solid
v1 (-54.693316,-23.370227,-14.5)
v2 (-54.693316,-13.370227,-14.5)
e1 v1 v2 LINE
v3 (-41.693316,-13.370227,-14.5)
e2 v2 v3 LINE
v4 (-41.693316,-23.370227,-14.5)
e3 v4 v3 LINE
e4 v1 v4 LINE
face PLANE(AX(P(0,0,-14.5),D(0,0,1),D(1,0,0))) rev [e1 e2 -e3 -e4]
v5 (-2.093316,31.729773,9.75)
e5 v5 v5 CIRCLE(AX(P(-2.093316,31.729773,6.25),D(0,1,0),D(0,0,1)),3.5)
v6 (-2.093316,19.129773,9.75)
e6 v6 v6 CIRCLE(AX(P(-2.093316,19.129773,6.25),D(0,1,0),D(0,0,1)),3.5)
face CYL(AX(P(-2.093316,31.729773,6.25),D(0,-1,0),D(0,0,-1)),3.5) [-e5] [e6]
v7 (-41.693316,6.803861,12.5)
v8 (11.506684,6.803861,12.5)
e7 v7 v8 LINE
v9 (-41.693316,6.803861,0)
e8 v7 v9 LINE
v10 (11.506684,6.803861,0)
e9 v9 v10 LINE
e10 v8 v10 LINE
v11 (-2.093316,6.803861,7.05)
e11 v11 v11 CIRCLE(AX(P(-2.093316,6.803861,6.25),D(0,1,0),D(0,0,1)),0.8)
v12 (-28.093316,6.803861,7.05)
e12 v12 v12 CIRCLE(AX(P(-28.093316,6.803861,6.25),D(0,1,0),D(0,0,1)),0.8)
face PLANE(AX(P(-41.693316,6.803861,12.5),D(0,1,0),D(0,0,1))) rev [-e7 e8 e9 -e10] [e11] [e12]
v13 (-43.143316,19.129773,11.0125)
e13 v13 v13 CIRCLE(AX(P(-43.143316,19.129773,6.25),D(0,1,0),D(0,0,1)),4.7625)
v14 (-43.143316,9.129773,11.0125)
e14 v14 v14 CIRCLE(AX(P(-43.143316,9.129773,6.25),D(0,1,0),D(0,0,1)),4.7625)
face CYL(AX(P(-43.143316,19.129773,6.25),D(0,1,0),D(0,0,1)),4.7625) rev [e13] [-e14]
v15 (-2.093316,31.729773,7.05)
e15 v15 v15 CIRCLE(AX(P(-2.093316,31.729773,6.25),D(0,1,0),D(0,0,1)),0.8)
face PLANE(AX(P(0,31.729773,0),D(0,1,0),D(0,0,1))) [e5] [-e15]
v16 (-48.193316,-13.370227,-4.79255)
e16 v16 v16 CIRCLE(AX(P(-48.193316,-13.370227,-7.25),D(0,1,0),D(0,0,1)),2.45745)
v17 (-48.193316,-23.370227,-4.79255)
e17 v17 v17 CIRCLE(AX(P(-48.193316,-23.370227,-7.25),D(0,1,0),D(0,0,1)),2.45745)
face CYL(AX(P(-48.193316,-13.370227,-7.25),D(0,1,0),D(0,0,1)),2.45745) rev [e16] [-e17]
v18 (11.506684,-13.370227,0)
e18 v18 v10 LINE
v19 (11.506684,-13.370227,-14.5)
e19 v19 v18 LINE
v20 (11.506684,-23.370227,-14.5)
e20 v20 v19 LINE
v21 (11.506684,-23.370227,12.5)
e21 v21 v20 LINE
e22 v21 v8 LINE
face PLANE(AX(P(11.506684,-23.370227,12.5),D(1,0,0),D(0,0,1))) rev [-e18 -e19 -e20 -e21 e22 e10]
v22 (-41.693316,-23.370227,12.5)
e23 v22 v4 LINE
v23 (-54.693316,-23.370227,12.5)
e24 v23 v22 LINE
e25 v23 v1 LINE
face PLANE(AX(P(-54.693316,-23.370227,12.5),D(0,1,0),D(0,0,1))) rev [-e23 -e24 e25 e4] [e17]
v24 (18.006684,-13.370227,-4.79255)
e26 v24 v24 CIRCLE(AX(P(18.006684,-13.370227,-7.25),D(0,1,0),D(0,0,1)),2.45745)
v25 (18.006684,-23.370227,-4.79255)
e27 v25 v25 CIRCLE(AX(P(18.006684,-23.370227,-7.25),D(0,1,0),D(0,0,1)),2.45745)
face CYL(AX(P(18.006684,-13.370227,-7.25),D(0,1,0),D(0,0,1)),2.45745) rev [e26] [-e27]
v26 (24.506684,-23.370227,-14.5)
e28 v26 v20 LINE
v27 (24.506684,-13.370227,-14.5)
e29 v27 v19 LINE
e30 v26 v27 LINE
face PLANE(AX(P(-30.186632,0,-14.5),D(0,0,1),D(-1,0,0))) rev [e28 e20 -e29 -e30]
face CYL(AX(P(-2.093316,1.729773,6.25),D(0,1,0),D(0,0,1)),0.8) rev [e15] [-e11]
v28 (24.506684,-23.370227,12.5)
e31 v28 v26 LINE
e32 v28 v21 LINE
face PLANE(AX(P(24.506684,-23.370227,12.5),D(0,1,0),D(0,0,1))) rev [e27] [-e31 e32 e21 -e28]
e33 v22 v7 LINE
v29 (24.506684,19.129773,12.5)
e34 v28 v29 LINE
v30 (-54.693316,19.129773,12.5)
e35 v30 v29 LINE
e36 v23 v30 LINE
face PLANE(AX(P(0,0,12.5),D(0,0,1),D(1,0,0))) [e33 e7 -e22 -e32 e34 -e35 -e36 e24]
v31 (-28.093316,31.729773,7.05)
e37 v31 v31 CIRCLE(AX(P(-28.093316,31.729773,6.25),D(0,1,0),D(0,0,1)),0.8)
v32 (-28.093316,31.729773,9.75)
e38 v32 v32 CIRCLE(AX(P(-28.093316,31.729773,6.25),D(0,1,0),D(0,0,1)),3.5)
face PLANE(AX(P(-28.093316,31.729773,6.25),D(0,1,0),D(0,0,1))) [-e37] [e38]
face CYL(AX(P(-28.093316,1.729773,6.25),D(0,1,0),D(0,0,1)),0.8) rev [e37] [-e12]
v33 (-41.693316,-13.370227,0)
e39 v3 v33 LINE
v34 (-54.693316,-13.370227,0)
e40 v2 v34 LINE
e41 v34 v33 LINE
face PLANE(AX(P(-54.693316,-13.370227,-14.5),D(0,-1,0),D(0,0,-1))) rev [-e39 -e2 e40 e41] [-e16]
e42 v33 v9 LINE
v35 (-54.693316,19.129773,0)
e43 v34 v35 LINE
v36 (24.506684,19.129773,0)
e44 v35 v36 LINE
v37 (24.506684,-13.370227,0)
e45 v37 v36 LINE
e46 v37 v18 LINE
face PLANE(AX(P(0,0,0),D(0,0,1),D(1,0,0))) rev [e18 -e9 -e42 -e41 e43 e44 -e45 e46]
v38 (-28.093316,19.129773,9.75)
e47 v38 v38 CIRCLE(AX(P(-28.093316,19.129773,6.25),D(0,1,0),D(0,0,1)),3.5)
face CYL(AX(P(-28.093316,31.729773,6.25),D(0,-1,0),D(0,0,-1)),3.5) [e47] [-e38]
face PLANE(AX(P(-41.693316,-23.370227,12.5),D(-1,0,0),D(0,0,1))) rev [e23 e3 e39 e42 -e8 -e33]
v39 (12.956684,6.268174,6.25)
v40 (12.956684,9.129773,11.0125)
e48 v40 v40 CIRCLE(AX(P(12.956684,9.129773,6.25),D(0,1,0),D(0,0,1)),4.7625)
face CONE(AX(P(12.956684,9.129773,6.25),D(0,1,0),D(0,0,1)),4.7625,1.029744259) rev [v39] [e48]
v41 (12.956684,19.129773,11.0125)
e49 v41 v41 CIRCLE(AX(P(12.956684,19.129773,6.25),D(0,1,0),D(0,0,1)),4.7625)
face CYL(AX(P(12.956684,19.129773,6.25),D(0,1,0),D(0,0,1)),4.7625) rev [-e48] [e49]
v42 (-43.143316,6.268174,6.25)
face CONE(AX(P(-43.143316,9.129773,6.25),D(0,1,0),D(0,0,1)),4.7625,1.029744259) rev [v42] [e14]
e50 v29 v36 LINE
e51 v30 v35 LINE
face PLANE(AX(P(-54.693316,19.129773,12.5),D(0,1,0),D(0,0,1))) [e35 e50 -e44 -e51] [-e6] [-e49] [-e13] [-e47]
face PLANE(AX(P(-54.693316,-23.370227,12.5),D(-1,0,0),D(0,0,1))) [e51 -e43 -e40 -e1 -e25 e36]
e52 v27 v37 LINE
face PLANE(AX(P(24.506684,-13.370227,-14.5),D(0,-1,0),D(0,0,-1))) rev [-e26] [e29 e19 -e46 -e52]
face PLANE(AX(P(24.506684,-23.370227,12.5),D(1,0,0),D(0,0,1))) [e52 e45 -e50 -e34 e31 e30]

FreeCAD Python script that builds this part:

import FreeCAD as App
import Part
import Sketcher

V = App.Vector

doc = App.newDocument("Part")
body = doc.addObject("PartDesign::Body", "Body")

sketch1 = body.newObject("Sketcher::SketchObject", "Sketch")
sketch1.AttachmentSupport = (doc.getObject("XY_Plane"), [""])
sketch1.MapMode = "FlatFace"
sketch1.addGeometry([
    Part.LineSegment(V(-55, 19, 0), V(-55, -23, 0)),
    Part.LineSegment(V(-55, -23, 0), V(-42, -23, 0)),
    Part.LineSegment(V(-42, -23, 0), V(-42, 7, 0)),
    Part.LineSegment(V(-42, 7, 0), V(-15, 7, 0)),
    Part.LineSegment(V(-15, 7, 0), V(-15, 19, 0)),
    Part.LineSegment(V(-15, 19, 0), V(-55, 19, 0)),
], False)
sketch1.addConstraint([
    Sketcher.Constraint("Coincident", 0, 2, 1, 1),
    Sketcher.Constraint("Coincident", 1, 2, 2, 1),
    Sketcher.Constraint("Coincident", 2, 2, 3, 1),
    Sketcher.Constraint("Coincident", 3, 2, 4, 1),
    Sketcher.Constraint("Coincident", 4, 2, 5, 1),
    Sketcher.Constraint("Coincident", 5, 2, 0, 1),
    Sketcher.Constraint("Vertical", 0),
    Sketcher.Constraint("Horizontal", 1),
    Sketcher.Constraint("Vertical", 2),
    Sketcher.Constraint("Horizontal", 3),
    Sketcher.Constraint("Vertical", 4),
    Sketcher.Constraint("Horizontal", 5),
    Sketcher.Constraint("DistanceX", 1, 1, 1, 2, 13.0),
    Sketcher.Constraint("DistanceX", 3, 1, 3, 2, 26.6),
    Sketcher.Constraint("DistanceY", 0, 2, 0, 1, 42.5),
    Sketcher.Constraint("DistanceY", 2, 1, 2, 2, 30.174087),
    Sketcher.Constraint("DistanceY", -1, 1, 2, 2, 6.803861),
    Sketcher.Constraint("DistanceX", 0, 2, -1, 1, 54.693316),
])
pad1 = body.newObject("PartDesign::Pad", "Pad")
pad1.Profile = sketch1
pad1.Length = 12.5

sketch2 = body.newObject("Sketcher::SketchObject", "Sketch001")
sketch2.AttachmentSupport = (doc.getObject("XY_Plane"), [""])
sketch2.MapMode = "FlatFace"
sketch2.addGeometry([
    Part.LineSegment(V(-42, -13, 0), V(-42, -23, 0)),
    Part.LineSegment(V(-42, -23, 0), V(-55, -23, 0)),
    Part.LineSegment(V(-55, -23, 0), V(-55, -13, 0)),
    Part.LineSegment(V(-55, -13, 0), V(-42, -13, 0)),
], False)
sketch2.addConstraint([
    Sketcher.Constraint("Coincident", 0, 2, 1, 1),
    Sketcher.Constraint("Coincident", 1, 2, 2, 1),
    Sketcher.Constraint("Coincident", 2, 2, 3, 1),
    Sketcher.Constraint("Coincident", 3, 2, 0, 1),
    Sketcher.Constraint("Vertical", 0),
    Sketcher.Constraint("Horizontal", 1),
    Sketcher.Constraint("Vertical", 2),
    Sketcher.Constraint("Horizontal", 3),
    Sketcher.Constraint("DistanceX", 1, 2, 1, 1, 13.0),
    Sketcher.Constraint("DistanceY", 0, 2, 0, 1, 10.0),
    Sketcher.Constraint("DistanceX", 0, 2, -1, 1, 41.693316),
    Sketcher.Constraint("DistanceY", 0, 2, -1, 1, 23.370227),
])
pad2 = body.newObject("PartDesign::Pad", "Pad001")
pad2.Profile = sketch2
pad2.Length = 14.5
pad2.Reversed = True
body2 = doc.addObject("PartDesign::Body", "Body001")
doc.recompute()

body2.BaseFeature = body
doc.recompute()

mirroring = doc.addObject("Part::Mirroring", "Mirroring")
mirroring.Source = body
mirroring.Base = V(-15.093316, 6.803861, 12.5)
mirroring.Normal = V(-1, 0, 0)
body3 = doc.addObject("PartDesign::Body", "Body002")
body3.BaseFeature = mirroring
boolean = body2.newObject("PartDesign::Boolean", "Boolean")
boolean.Type = "Fuse"
boolean.addObjects([body3])
doc.recompute()

sketch3 = body2.newObject("Sketcher::SketchObject", "Sketch002")
sketch3.AttachmentSupport = (doc.getObject("XZ_Plane001"), [""])
sketch3.MapMode = "FlatFace"
sketch3.AttachmentOffset = App.Placement(V(0, 0, 13.370227), App.Rotation())
sketch3.addGeometry([
    Part.Circle(V(-48.2, -7.2, 0), V(0, 0, 1), 2.5),
    Part.Circle(V(18, -7.2, 0), V(0, 0, 1), 2.5),
], False)
sketch3.addConstraint([
    Sketcher.Constraint("Equal", 0, 1),
    Sketcher.Constraint("Horizontal", 0, 3, 1, 3),
    Sketcher.Constraint("Diameter", 0, 4.9149),
    Sketcher.Constraint("DistanceX", 0, 3, 1, 3, 66.2),
    Sketcher.Constraint("DistanceY", 0, 3, -1, 1, 7.25),
    Sketcher.Constraint("DistanceX", 0, 3, -1, 1, 48.193316),
])
doc.recompute()
hole = body2.newObject("PartDesign::Hole", "Hole")
hole.Profile = sketch3
hole.ThreadType = "None"
hole.Diameter = 4.9149
hole.DepthType = "ThroughAll"
hole.Reversed = True

sketch4 = body2.newObject("Sketcher::SketchObject", "Sketch003")
sketch4.AttachmentSupport = (doc.getObject("XZ_Plane001"), [""])
sketch4.MapMode = "FlatFace"
sketch4.AttachmentOffset = App.Placement(V(0, 0, -19.129773), App.Rotation())
sketch4.addGeometry([
    Part.Circle(V(-28.1, 6.2, 0), V(0, 0, 1), 3.5),
    Part.Circle(V(-2.1, 6.2, 0), V(0, 0, 1), 3.5),
], False)
sketch4.addConstraint([
    Sketcher.Constraint("Equal", 0, 1),
    Sketcher.Constraint("Horizontal", 0, 3, 1, 3),
    Sketcher.Constraint("Diameter", 0, 7.0),
    Sketcher.Constraint("DistanceX", 0, 3, 1, 3, 26.0),
    Sketcher.Constraint("DistanceY", -1, 1, 0, 3, 6.25),
    Sketcher.Constraint("DistanceX", 0, 3, -1, 1, 28.093316),
])
pad3 = body2.newObject("PartDesign::Pad", "Pad002")
pad3.Profile = sketch4
pad3.Length = 12.6
pad3.Reversed = True

sketch5 = body2.newObject("Sketcher::SketchObject", "Sketch004")
sketch5.AttachmentSupport = (doc.getObject("XZ_Plane001"), [""])
sketch5.MapMode = "FlatFace"
sketch5.AttachmentOffset = App.Placement(V(0, 0, -31.729773), App.Rotation())
sketch5.addGeometry(Part.Circle(V(-2.1, 6.2, 0), V(0, 0, 1), 0.8), False)
sketch5.addConstraint([
    Sketcher.Constraint("Diameter", 0, 1.6),
    Sketcher.Constraint("DistanceY", -1, 1, 0, 3, 6.25),
    Sketcher.Constraint("DistanceX", 0, 3, -1, 1, 2.093316),
])
pocket1 = body2.newObject("PartDesign::Pocket", "Pocket")
pocket1.Profile = sketch5
pocket1.Length = 30
pocket1.Reversed = True

sketch6 = body2.newObject("Sketcher::SketchObject", "Sketch005")
sketch6.AttachmentSupport = (doc.getObject("XZ_Plane001"), [""])
sketch6.MapMode = "FlatFace"
sketch6.AttachmentOffset = App.Placement(V(0, 0, -31.729773), App.Rotation())
sketch6.addGeometry(Part.Circle(V(-28.1, 6.2, 0), V(0, 0, 1), 0.8), False)
sketch6.addConstraint([
    Sketcher.Constraint("Diameter", 0, 1.6),
    Sketcher.Constraint("DistanceY", -1, 1, 0, 3, 6.25),
    Sketcher.Constraint("DistanceX", 0, 3, -1, 1, 28.093316),
])
pocket2 = body2.newObject("PartDesign::Pocket", "Pocket001")
pocket2.Profile = sketch6
pocket2.Length = 30
pocket2.Reversed = True

sketch7 = body2.newObject("Sketcher::SketchObject", "Sketch006")
sketch7.AttachmentSupport = (doc.getObject("XZ_Plane001"), [""])
sketch7.MapMode = "FlatFace"
sketch7.AttachmentOffset = App.Placement(V(0, 0, -19.129773), App.Rotation())
sketch7.addGeometry([
    Part.Circle(V(-43.1, 6.2, 0), V(0, 0, 1), 4.8),
    Part.Circle(V(13, 6.2, 0), V(0, 0, 1), 4.8),
], False)
sketch7.addConstraint([
    Sketcher.Constraint("Equal", 0, 1),
    Sketcher.Constraint("Horizontal", 0, 3, 1, 3),
    Sketcher.Constraint("Diameter", 0, 9.525),
    Sketcher.Constraint("DistanceX", 0, 3, 1, 3, 56.1),
    Sketcher.Constraint("DistanceY", -1, 1, 0, 3, 6.25),
    Sketcher.Constraint("DistanceX", 0, 3, -1, 1, 43.143316),
])
doc.recompute()
hole2 = body2.newObject("PartDesign::Hole", "Hole001")
hole2.Profile = sketch7
hole2.ThreadType = "None"
hole2.Diameter = 9.525
hole2.DepthType = "Dimension"
hole2.Depth = 10
hole2.DrillPoint = "Angled"
hole2.DrillPointAngle = 118
hole2.Reversed = True
mirroring.Visibility = False

doc.recompute()
